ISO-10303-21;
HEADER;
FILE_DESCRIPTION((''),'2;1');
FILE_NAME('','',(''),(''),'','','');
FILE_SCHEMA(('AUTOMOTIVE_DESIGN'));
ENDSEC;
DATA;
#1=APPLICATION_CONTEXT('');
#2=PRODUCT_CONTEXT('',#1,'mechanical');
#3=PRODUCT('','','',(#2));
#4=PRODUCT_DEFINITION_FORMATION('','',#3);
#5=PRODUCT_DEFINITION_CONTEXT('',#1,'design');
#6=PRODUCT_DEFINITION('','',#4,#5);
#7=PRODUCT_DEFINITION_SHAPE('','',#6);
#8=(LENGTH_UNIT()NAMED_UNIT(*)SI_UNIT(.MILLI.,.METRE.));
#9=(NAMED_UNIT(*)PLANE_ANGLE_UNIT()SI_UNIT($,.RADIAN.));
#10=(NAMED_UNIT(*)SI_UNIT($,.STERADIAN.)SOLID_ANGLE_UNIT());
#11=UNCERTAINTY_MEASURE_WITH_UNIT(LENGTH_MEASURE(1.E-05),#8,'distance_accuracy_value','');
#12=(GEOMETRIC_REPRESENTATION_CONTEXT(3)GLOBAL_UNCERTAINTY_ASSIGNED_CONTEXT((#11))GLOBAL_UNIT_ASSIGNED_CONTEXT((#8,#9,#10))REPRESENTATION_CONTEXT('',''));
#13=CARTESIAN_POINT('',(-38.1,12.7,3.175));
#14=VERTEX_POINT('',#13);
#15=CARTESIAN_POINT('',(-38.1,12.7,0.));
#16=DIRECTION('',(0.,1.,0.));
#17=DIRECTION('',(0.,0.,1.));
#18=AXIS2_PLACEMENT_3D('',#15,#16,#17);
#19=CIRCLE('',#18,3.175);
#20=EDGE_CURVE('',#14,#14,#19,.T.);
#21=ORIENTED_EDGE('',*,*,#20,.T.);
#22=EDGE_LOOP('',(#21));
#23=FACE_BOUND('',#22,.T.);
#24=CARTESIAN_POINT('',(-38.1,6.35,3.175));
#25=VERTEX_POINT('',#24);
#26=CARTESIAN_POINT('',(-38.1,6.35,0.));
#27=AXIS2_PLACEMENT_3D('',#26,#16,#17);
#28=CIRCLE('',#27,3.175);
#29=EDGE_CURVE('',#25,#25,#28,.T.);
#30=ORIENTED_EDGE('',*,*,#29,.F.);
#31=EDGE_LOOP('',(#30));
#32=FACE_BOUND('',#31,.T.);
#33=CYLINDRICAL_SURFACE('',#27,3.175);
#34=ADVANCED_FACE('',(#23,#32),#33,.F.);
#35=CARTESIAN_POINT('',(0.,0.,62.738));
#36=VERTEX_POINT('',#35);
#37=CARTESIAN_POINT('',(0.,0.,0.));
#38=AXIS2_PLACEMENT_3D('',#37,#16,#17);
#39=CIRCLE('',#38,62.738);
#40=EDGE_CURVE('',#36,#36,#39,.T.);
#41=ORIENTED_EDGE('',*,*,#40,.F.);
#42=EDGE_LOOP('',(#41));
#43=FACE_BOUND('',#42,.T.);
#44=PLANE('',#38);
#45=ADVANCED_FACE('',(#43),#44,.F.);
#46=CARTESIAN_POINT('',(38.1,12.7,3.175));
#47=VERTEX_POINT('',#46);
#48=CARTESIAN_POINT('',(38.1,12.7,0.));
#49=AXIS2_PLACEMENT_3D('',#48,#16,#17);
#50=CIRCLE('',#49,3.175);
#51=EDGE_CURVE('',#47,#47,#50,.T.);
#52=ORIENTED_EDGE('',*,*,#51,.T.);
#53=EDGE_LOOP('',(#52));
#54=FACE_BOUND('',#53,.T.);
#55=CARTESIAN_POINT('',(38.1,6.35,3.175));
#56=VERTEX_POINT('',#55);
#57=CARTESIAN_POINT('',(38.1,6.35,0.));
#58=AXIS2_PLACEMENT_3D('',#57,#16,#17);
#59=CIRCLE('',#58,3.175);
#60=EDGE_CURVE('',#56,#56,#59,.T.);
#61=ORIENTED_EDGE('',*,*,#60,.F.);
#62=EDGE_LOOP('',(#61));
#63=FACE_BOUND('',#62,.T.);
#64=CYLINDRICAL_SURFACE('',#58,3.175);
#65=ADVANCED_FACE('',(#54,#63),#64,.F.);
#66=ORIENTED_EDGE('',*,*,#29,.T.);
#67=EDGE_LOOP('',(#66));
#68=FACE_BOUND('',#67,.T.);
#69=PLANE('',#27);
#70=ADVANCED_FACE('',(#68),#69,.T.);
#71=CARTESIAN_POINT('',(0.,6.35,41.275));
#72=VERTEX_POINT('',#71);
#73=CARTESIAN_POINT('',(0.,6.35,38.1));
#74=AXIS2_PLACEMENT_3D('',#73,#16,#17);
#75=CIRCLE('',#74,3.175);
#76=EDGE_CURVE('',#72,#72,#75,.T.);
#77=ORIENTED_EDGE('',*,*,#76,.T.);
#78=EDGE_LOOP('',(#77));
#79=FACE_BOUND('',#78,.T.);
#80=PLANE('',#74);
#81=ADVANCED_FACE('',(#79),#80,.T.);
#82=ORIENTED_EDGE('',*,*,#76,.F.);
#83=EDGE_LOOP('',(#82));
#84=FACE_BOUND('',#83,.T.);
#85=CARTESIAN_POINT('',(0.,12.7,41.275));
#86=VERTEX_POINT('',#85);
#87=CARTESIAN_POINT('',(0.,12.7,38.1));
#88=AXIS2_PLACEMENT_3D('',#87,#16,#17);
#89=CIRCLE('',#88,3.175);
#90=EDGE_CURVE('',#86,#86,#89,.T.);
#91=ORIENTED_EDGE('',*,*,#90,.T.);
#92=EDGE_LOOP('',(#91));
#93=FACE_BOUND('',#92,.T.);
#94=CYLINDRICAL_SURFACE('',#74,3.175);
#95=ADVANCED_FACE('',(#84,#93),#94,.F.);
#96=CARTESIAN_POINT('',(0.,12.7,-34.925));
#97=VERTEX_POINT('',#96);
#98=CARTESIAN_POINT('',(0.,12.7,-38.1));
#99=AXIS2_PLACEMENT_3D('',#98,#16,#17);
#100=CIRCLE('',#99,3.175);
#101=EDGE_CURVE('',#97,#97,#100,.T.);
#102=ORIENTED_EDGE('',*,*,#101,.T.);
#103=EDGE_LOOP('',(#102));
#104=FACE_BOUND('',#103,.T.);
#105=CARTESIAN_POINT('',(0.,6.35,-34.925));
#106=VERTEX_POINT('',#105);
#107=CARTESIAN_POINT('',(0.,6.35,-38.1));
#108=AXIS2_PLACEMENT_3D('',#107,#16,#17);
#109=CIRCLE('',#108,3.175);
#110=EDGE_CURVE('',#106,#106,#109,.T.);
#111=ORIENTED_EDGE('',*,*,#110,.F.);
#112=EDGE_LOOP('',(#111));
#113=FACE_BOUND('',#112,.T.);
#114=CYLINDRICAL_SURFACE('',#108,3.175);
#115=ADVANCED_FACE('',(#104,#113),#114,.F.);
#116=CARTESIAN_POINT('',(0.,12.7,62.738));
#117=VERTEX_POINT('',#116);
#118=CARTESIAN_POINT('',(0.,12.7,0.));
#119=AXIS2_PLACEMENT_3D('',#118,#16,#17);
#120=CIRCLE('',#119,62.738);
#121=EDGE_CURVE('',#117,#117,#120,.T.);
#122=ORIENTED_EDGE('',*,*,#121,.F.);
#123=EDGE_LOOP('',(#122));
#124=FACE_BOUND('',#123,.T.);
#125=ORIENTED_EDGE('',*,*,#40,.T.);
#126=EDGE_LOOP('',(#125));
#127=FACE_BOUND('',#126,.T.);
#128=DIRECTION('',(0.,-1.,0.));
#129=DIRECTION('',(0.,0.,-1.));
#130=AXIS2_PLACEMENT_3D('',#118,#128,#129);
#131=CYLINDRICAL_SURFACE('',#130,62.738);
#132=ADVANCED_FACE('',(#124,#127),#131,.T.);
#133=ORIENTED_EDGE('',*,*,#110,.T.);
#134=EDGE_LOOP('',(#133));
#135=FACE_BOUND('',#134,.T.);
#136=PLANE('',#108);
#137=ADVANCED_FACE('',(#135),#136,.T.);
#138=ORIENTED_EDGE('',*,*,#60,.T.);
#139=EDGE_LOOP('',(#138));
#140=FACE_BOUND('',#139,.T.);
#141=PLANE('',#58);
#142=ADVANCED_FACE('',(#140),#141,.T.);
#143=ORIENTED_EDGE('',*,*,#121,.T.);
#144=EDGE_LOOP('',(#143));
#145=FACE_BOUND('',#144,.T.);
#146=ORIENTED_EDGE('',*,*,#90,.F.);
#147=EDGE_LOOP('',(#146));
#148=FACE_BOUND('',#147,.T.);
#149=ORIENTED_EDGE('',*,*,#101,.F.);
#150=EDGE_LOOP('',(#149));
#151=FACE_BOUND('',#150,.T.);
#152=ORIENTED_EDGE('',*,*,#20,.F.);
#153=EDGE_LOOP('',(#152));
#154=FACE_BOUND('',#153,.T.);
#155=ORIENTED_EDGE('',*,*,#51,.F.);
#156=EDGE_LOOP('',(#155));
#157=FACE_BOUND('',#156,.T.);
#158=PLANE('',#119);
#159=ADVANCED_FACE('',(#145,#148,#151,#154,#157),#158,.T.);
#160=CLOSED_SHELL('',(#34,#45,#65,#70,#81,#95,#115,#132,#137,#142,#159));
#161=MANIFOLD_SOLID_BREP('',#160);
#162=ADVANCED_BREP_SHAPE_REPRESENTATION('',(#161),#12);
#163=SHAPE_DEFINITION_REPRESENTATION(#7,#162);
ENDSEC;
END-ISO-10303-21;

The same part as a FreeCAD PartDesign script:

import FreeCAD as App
import Part
import Sketcher
Q = App.Units.Quantity

doc = App.newDocument("Part")
body = doc.addObject("PartDesign::Body", "Body")

# Sketch on XZ plane
sketch1 = body.newObject("Sketcher::SketchObject", "Sketch")
sketch1.AttachmentSupport = (doc.getObject("XZ_Plane"), [""])
sketch1.MapMode = "FlatFace"
sketch1.addGeometry(Part.Circle(App.Vector(0, 0, 0), App.Vector(0, 0, 1), 62.738), False)
sketch1.addConstraint([
    Sketcher.Constraint("Coincident", 0, 3, -1, 1),
    Sketcher.Constraint("Diameter", 0, Q("4.94 in")),
])
pad1 = body.newObject("PartDesign::Pad", "Pad")
pad1.Profile = sketch1
pad1.Length = Q("0.5 in")
pad1.Reversed = True

# Sketch on XZ plane
sketch2 = body.newObject("Sketcher::SketchObject", "Sketch001")
sketch2.AttachmentSupport = (doc.getObject("XZ_Plane"), [""])
sketch2.MapMode = "FlatFace"
sketch2.AttachmentOffset = App.Placement(App.Vector(0, 0, -0.5 * 25.4), App.Rotation())
sketch2.addGeometry([
    Part.Circle(App.Vector(38.1, 0, 0), App.Vector(0, 0, 1), 3.175),
    Part.Circle(App.Vector(0, 38.1, 0), App.Vector(0, 0, 1), 3.175),
    Part.Circle(App.Vector(-38.1, 0, 0), App.Vector(0, 0, 1), 3.175),
    Part.Circle(App.Vector(0, -38.1, 0), App.Vector(0, 0, 1), 3.175),
], False)
sketch2.addConstraint([
    Sketcher.Constraint("Equal", 0, 1),
    Sketcher.Constraint("Equal", 1, 2),
    Sketcher.Constraint("Equal", 2, 3),
    Sketcher.Constraint("Symmetric", 0, 3, 2, 3, -1, 1),
    Sketcher.Constraint("Symmetric", 1, 3, 3, 3, -1, 1),
    Sketcher.Constraint("PointOnObject", 0, 3, -1),
    Sketcher.Constraint("PointOnObject", 1, 3, -2),
    Sketcher.Constraint("Diameter", 0, Q("0.25 in")),
    Sketcher.Constraint("DistanceX", 2, 3, 0, 3, Q("3 in")),
    Sketcher.Constraint("DistanceY", 3, 3, 1, 3, Q("3 in")),
])
pocket1 = body.newObject("PartDesign::Pocket", "Pocket")
pocket1.Profile = sketch2
pocket1.Length = Q("0.25 in")
pocket1.Reversed = True

doc.recompute()
